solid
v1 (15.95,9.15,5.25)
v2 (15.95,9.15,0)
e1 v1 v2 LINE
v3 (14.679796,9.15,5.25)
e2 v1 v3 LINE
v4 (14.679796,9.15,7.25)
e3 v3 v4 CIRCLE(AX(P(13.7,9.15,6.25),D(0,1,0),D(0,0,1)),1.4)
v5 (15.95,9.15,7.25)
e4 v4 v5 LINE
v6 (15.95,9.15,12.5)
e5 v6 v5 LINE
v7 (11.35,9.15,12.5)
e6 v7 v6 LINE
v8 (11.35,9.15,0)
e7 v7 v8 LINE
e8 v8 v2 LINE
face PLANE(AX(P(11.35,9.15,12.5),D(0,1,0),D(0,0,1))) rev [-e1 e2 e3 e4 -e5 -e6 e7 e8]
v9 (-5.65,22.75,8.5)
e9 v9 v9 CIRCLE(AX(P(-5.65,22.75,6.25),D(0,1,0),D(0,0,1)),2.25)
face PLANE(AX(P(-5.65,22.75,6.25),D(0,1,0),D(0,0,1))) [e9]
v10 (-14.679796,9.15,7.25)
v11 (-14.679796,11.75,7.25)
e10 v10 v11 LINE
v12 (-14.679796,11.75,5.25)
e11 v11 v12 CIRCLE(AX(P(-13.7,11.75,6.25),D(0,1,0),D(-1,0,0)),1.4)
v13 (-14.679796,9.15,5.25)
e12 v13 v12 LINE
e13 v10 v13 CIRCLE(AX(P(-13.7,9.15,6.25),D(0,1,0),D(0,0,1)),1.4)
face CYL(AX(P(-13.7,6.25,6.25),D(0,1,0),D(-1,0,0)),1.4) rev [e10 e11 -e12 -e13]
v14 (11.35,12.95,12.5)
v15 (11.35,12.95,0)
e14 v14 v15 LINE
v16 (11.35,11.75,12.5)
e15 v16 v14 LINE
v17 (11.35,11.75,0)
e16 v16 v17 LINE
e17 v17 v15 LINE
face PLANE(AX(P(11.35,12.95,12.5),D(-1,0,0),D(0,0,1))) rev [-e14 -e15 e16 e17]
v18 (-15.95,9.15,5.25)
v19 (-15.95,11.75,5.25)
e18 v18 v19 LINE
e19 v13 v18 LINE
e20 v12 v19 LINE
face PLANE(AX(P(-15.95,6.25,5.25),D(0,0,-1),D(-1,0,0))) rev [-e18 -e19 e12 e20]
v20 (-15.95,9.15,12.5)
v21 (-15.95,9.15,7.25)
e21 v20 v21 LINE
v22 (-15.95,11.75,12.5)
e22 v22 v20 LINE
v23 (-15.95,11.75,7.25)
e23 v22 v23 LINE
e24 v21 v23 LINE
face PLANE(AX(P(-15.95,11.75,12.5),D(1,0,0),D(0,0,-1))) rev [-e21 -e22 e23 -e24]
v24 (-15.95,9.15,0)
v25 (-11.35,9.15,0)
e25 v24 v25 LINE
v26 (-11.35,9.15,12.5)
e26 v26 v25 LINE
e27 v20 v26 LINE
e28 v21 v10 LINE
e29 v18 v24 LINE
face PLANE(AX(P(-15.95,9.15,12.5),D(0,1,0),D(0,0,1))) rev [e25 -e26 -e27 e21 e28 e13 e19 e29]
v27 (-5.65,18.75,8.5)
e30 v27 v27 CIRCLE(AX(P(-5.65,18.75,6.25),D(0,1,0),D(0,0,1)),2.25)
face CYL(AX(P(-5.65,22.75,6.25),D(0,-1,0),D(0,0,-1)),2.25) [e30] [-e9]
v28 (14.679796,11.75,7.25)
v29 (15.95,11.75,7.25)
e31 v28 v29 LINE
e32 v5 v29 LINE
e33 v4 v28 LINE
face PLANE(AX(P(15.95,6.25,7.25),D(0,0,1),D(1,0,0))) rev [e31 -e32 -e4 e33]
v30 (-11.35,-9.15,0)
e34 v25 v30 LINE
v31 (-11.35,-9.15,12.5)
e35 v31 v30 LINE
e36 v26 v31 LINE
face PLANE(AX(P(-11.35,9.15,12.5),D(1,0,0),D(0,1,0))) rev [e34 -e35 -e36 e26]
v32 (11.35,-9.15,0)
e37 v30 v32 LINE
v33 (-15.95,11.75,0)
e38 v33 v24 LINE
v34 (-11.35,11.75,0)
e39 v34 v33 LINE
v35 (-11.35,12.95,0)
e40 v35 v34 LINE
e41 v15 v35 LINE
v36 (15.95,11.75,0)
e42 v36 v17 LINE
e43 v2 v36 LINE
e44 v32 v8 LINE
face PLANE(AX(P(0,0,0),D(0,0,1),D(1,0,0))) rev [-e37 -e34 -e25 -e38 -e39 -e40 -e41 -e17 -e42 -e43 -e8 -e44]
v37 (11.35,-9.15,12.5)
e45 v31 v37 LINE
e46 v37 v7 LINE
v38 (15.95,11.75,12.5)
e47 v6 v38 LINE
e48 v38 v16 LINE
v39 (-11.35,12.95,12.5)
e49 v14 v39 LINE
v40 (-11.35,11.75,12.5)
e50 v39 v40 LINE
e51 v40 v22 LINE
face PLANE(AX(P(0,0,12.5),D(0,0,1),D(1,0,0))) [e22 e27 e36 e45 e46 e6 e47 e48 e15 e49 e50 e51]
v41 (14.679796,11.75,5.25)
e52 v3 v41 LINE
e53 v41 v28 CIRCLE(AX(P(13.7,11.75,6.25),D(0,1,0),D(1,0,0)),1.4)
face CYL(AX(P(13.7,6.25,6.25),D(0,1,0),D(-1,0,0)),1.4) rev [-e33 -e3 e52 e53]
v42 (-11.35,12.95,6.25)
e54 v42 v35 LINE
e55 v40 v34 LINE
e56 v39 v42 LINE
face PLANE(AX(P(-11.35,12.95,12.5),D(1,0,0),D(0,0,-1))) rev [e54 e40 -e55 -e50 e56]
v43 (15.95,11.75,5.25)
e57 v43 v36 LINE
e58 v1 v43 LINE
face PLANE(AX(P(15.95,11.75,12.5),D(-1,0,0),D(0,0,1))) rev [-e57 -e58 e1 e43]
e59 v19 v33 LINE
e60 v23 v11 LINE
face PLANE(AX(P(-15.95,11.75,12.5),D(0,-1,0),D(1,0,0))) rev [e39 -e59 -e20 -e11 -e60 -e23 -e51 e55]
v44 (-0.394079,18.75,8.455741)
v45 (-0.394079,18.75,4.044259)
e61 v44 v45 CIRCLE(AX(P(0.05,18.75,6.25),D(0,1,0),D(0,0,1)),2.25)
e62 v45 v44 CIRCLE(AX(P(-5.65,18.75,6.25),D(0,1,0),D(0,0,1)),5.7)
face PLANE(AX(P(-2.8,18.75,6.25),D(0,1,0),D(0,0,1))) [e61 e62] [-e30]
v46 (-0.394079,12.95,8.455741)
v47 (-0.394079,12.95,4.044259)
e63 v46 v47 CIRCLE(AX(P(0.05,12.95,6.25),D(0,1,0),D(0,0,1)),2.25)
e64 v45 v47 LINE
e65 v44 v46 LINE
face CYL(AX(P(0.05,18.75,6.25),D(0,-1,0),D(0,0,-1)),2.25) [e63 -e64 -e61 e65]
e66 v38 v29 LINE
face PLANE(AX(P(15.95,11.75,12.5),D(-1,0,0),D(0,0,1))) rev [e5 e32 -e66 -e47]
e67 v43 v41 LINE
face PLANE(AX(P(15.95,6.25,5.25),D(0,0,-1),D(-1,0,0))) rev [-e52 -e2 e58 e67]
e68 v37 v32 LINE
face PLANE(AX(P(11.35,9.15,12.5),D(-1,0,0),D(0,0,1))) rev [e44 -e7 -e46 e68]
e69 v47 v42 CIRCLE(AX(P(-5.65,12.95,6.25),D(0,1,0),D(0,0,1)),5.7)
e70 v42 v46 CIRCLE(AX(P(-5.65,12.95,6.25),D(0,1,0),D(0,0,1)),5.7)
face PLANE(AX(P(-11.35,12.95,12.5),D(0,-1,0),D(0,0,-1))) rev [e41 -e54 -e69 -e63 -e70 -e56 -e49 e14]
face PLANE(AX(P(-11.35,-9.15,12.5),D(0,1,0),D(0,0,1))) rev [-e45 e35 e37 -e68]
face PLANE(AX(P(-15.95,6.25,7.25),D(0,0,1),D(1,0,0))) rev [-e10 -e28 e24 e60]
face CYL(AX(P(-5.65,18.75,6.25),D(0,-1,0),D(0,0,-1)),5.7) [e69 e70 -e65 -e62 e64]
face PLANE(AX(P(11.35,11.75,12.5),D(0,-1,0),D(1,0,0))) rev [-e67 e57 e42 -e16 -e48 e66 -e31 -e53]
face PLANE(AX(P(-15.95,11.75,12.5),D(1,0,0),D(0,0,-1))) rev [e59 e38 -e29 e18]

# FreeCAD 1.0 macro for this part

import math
import FreeCAD as App
import Part
import Sketcher
Q = App.Units.Quantity

doc = App.newDocument("Part")
body = doc.addObject("PartDesign::Body", "Body")

# Sketch on XY plane
sketch1 = doc.addObject("Sketcher::SketchObject", "Sketch")
body.addObject(sketch1)
sketch1.AttachmentSupport = (doc.XY_Plane, [""])
sketch1.MapMode = "FlatFace"
sketch1.addGeometry(Part.LineSegment(App.Vector(15.95, 11.75, 0), App.Vector(11.35, 11.75, 0)), False)
sketch1.addGeometry(Part.LineSegment(App.Vector(11.35, 11.75, 0), App.Vector(11.35, 12.95, 0)), False)
sketch1.addGeometry(Part.LineSegment(App.Vector(11.35, 12.95, 0), App.Vector(-11.35, 12.95, 0)), False)
sketch1.addGeometry(Part.LineSegment(App.Vector(-11.35, 12.95, 0), App.Vector(-11.35, 11.75, 0)), False)
sketch1.addGeometry(Part.LineSegment(App.Vector(-11.35, 11.75, 0), App.Vector(-15.95, 11.75, 0)), False)
sketch1.addGeometry(Part.LineSegment(App.Vector(-15.95, 11.75, 0), App.Vector(-15.95, 9.15, 0)), False)
sketch1.addGeometry(Part.LineSegment(App.Vector(-15.95, 9.15, 0), App.Vector(-11.35, 9.15, 0)), False)
sketch1.addGeometry(Part.LineSegment(App.Vector(-11.35, 9.15, 0), App.Vector(-11.35, -9.15, 0)), False)
sketch1.addGeometry(Part.LineSegment(App.Vector(-11.35, -9.15, 0), App.Vector(11.35, -9.15, 0)), False)
sketch1.addGeometry(Part.LineSegment(App.Vector(11.35, -9.15, 0), App.Vector(11.35, 9.15, 0)), False)
sketch1.addGeometry(Part.LineSegment(App.Vector(11.35, 9.15, 0), App.Vector(15.95, 9.15, 0)), False)
sketch1.addGeometry(Part.LineSegment(App.Vector(15.95, 9.15, 0), App.Vector(15.95, 11.75, 0)), False)
sketch1.addConstraint(Sketcher.Constraint("Coincident", 0, 2, 1, 1))
sketch1.addConstraint(Sketcher.Constraint("Coincident", 1, 2, 2, 1))
sketch1.addConstraint(Sketcher.Constraint("Coincident", 2, 2, 3, 1))
sketch1.addConstraint(Sketcher.Constraint("Coincident", 3, 2, 4, 1))
sketch1.addConstraint(Sketcher.Constraint("Coincident", 4, 2, 5, 1))
sketch1.addConstraint(Sketcher.Constraint("Coincident", 5, 2, 6, 1))
sketch1.addConstraint(Sketcher.Constraint("Coincident", 6, 2, 7, 1))
sketch1.addConstraint(Sketcher.Constraint("Coincident", 7, 2, 8, 1))
sketch1.addConstraint(Sketcher.Constraint("Coincident", 8, 2, 9, 1))
sketch1.addConstraint(Sketcher.Constraint("Coincident", 9, 2, 10, 1))
sketch1.addConstraint(Sketcher.Constraint("Coincident", 10, 2, 11, 1))
sketch1.addConstraint(Sketcher.Constraint("Coincident", 11, 2, 0, 1))
sketch1.addConstraint(Sketcher.Constraint("Horizontal", 0))
sketch1.addConstraint(Sketcher.Constraint("Vertical", 1))
sketch1.addConstraint(Sketcher.Constraint("Horizontal", 2))
sketch1.addConstraint(Sketcher.Constraint("Vertical", 3))
sketch1.addConstraint(Sketcher.Constraint("Horizontal", 4))
sketch1.addConstraint(Sketcher.Constraint("Vertical", 5))
sketch1.addConstraint(Sketcher.Constraint("Horizontal", 6))
sketch1.addConstraint(Sketcher.Constraint("Vertical", 7))
sketch1.addConstraint(Sketcher.Constraint("Horizontal", 8))
sketch1.addConstraint(Sketcher.Constraint("Vertical", 9))
sketch1.addConstraint(Sketcher.Constraint("Horizontal", 10))
sketch1.addConstraint(Sketcher.Constraint("Vertical", 11))
sketch1.addConstraint(Sketcher.Constraint("Symmetric", 6, 2, 8, 2, -1, 1))
sketch1.addConstraint(Sketcher.Constraint("Symmetric", 0, 2, 3, 2, -2))
sketch1.addConstraint(Sketcher.Constraint("Symmetric", 5, 2, 10, 2, -2))
sketch1.addConstraint(Sketcher.Constraint("Vertical", 3, 2, 6, 2))
sketch1.addConstraint(Sketcher.Constraint("DistanceX", 0, 2, 0, 1, Q("4.6 mm")))
sketch1.addConstraint(Sketcher.Constraint("DistanceX", 2, 2, 2, 1, Q("22.7 mm")))
sketch1.addConstraint(Sketcher.Constraint("DistanceY", 1, 1, 1, 2, Q("1.2 mm")))
sketch1.addConstraint(Sketcher.Constraint("DistanceY", 5, 2, 5, 1, Q("2.6 mm")))
sketch1.addConstraint(Sketcher.Constraint("DistanceY", 7, 2, 7, 1, Q("18.3 mm")))
pad1 = doc.addObject("PartDesign::Pad", "Pad")
body.addObject(pad1)
pad1.Profile = sketch1
pad1.Length = 12.5

# Sketch on XZ plane
sketch2 = doc.addObject("Sketcher::SketchObject", "Sketch001")
body.addObject(sketch2)
sketch2.AttachmentSupport = (doc.XZ_Plane, [""])
sketch2.MapMode = "FlatFace"
sketch2.AttachmentOffset = App.Placement(App.Vector(0, 0, -12.95), App.Rotation())
sketch2.addGeometry(Part.ArcOfCircle(Part.Circle(App.Vector(-5.65, 6.25, 0), App.Vector(0, 0, 1), 5.7), math.radians(22.766227), math.radians(337.233773)), False)
sketch2.addGeometry(Part.ArcOfCircle(Part.Circle(App.Vector(0.05, 6.25, 0), App.Vector(0, 0, 1), 2.25), math.radians(-101.383113), math.radians(101.383113)), False)
sketch2.addConstraint(Sketcher.Constraint("Coincident", 0, 1, 1, 2))
sketch2.addConstraint(Sketcher.Constraint("Coincident", 1, 1, 0, 2))
sketch2.addConstraint(Sketcher.Constraint("Horizontal", 0, 3, 1, 3))
sketch2.addConstraint(Sketcher.Constraint("Radius", 0, Q("5.7 mm")))
sketch2.addConstraint(Sketcher.Constraint("Radius", 1, Q("2.25 mm")))
sketch2.addConstraint(Sketcher.Constraint("DistanceX", 0, 3, 1, 3, Q("5.7 mm")))
sketch2.addConstraint(Sketcher.Constraint("DistanceX", 0, 3, -1, 1, Q("5.65 mm")))
sketch2.addConstraint(Sketcher.Constraint("DistanceY", -1, 1, 0, 3, Q("6.25 mm")))
pad2 = doc.addObject("PartDesign::Pad", "Pad001")
body.addObject(pad2)
pad2.Profile = sketch2
pad2.Length = 5.8
pad2.Reversed = True

# Sketch on XZ plane
sketch3 = doc.addObject("Sketcher::SketchObject", "Sketch002")
body.addObject(sketch3)
sketch3.AttachmentSupport = (doc.XZ_Plane, [""])
sketch3.MapMode = "FlatFace"
sketch3.AttachmentOffset = App.Placement(App.Vector(0, 0, -11.75), App.Rotation())
sketch3.addGeometry(Part.LineSegment(App.Vector(-15.95, 7.25, 0), App.Vector(-14.679796, 7.25, 0)), False)
sketch3.addGeometry(Part.ArcOfCircle(Part.Circle(App.Vector(-13.7, 6.25, 0), App.Vector(0, 0, 1), 1.4), math.radians(-134.415309), math.radians(134.415309)), False)
sketch3.addGeometry(Part.LineSegment(App.Vector(-14.679796, 5.25, 0), App.Vector(-15.95, 5.25, 0)), False)
sketch3.addGeometry(Part.LineSegment(App.Vector(-15.95, 5.25, 0), App.Vector(-15.95, 7.25, 0)), False)
sketch3.addGeometry(Part.LineSegment(App.Vector(15.95, 7.25, 0), App.Vector(15.95, 5.25, 0)), False)
sketch3.addGeometry(Part.LineSegment(App.Vector(15.95, 5.25, 0), App.Vector(14.679796, 5.25, 0)), False)
sketch3.addGeometry(Part.ArcOfCircle(Part.Circle(App.Vector(13.7, 6.25, 0), App.Vector(0, 0, 1), 1.4), math.radians(45.584691), math.radians(314.415309)), False)
sketch3.addGeometry(Part.LineSegment(App.Vector(14.679796, 7.25, 0), App.Vector(15.95, 7.25, 0)), False)
sketch3.addConstraint(Sketcher.Constraint("Coincident", 0, 2, 1, 2))
sketch3.addConstraint(Sketcher.Constraint("Coincident", 1, 1, 2, 1))
sketch3.addConstraint(Sketcher.Constraint("Coincident", 2, 2, 3, 1))
sketch3.addConstraint(Sketcher.Constraint("Coincident", 3, 2, 0, 1))
sketch3.addConstraint(Sketcher.Constraint("Coincident", 4, 2, 5, 1))
sketch3.addConstraint(Sketcher.Constraint("Coincident", 5, 2, 6, 2))
sketch3.addConstraint(Sketcher.Constraint("Coincident", 6, 1, 7, 1))
sketch3.addConstraint(Sketcher.Constraint("Coincident", 7, 2, 4, 1))
sketch3.addConstraint(Sketcher.Constraint("Horizontal", 0))
sketch3.addConstraint(Sketcher.Constraint("Horizontal", 2))
sketch3.addConstraint(Sketcher.Constraint("Vertical", 3))
sketch3.addConstraint(Sketcher.Constraint("Vertical", 4))
sketch3.addConstraint(Sketcher.Constraint("Horizontal", 5))
sketch3.addConstraint(Sketcher.Constraint("Horizontal", 7))
sketch3.addConstraint(Sketcher.Constraint("Equal", 1, 6))
sketch3.addConstraint(Sketcher.Constraint("Symmetric", 1, 3, 6, 3, -2))
sketch3.addConstraint(Sketcher.Constraint("Symmetric", 2, 2, 4, 2, -2))
sketch3.addConstraint(Sketcher.Constraint("Horizontal", 3, 2, 6, 1))
sketch3.addConstraint(Sketcher.Constraint("Vertical", 0, 2, 1, 1))
sketch3.addConstraint(Sketcher.Constraint("Radius", 1, Q("1.4 mm")))
sketch3.addConstraint(Sketcher.Constraint("DistanceY", 3, 1, 3, 2, Q("2 mm")))
sketch3.addConstraint(Sketcher.Constraint("DistanceX", 1, 3, -1, 1, Q("13.7 mm")))
sketch3.addConstraint(Sketcher.Constraint("DistanceX", 2, 2, 4, 2, Q("31.9 mm")))
sketch3.addConstraint(Sketcher.Constraint("DistanceY", -1, 1, 1, 3, Q("6.25 mm")))
pocket1 = doc.addObject("PartDesign::Pocket", "Pocket")
body.addObject(pocket1)
pocket1.Profile = sketch3
pocket1.Length = 5.5
pocket1.Reversed = True

# Sketch on XZ plane
sketch4 = doc.addObject("Sketcher::SketchObject", "Sketch003")
body.addObject(sketch4)
sketch4.AttachmentSupport = (doc.XZ_Plane, [""])
sketch4.MapMode = "FlatFace"
sketch4.AttachmentOffset = App.Placement(App.Vector(0, 0, -18.75), App.Rotation())
sketch4.addGeometry(Part.Circle(App.Vector(-5.65, 6.25, 0), App.Vector(0, 0, 1), 2.25), False)
sketch4.addConstraint(Sketcher.Constraint("Diameter", 0, Q("4.5 mm")))
sketch4.addConstraint(Sketcher.Constraint("DistanceX", 0, 3, -1, 1, Q("5.65 mm")))
sketch4.addConstraint(Sketcher.Constraint("DistanceY", -1, 1, 0, 3, Q("6.25 mm")))
pad3 = doc.addObject("PartDesign::Pad", "Pad002")
body.addObject(pad3)
pad3.Profile = sketch4
pad3.Length = 4
pad3.Reversed = True

doc.recompute()
